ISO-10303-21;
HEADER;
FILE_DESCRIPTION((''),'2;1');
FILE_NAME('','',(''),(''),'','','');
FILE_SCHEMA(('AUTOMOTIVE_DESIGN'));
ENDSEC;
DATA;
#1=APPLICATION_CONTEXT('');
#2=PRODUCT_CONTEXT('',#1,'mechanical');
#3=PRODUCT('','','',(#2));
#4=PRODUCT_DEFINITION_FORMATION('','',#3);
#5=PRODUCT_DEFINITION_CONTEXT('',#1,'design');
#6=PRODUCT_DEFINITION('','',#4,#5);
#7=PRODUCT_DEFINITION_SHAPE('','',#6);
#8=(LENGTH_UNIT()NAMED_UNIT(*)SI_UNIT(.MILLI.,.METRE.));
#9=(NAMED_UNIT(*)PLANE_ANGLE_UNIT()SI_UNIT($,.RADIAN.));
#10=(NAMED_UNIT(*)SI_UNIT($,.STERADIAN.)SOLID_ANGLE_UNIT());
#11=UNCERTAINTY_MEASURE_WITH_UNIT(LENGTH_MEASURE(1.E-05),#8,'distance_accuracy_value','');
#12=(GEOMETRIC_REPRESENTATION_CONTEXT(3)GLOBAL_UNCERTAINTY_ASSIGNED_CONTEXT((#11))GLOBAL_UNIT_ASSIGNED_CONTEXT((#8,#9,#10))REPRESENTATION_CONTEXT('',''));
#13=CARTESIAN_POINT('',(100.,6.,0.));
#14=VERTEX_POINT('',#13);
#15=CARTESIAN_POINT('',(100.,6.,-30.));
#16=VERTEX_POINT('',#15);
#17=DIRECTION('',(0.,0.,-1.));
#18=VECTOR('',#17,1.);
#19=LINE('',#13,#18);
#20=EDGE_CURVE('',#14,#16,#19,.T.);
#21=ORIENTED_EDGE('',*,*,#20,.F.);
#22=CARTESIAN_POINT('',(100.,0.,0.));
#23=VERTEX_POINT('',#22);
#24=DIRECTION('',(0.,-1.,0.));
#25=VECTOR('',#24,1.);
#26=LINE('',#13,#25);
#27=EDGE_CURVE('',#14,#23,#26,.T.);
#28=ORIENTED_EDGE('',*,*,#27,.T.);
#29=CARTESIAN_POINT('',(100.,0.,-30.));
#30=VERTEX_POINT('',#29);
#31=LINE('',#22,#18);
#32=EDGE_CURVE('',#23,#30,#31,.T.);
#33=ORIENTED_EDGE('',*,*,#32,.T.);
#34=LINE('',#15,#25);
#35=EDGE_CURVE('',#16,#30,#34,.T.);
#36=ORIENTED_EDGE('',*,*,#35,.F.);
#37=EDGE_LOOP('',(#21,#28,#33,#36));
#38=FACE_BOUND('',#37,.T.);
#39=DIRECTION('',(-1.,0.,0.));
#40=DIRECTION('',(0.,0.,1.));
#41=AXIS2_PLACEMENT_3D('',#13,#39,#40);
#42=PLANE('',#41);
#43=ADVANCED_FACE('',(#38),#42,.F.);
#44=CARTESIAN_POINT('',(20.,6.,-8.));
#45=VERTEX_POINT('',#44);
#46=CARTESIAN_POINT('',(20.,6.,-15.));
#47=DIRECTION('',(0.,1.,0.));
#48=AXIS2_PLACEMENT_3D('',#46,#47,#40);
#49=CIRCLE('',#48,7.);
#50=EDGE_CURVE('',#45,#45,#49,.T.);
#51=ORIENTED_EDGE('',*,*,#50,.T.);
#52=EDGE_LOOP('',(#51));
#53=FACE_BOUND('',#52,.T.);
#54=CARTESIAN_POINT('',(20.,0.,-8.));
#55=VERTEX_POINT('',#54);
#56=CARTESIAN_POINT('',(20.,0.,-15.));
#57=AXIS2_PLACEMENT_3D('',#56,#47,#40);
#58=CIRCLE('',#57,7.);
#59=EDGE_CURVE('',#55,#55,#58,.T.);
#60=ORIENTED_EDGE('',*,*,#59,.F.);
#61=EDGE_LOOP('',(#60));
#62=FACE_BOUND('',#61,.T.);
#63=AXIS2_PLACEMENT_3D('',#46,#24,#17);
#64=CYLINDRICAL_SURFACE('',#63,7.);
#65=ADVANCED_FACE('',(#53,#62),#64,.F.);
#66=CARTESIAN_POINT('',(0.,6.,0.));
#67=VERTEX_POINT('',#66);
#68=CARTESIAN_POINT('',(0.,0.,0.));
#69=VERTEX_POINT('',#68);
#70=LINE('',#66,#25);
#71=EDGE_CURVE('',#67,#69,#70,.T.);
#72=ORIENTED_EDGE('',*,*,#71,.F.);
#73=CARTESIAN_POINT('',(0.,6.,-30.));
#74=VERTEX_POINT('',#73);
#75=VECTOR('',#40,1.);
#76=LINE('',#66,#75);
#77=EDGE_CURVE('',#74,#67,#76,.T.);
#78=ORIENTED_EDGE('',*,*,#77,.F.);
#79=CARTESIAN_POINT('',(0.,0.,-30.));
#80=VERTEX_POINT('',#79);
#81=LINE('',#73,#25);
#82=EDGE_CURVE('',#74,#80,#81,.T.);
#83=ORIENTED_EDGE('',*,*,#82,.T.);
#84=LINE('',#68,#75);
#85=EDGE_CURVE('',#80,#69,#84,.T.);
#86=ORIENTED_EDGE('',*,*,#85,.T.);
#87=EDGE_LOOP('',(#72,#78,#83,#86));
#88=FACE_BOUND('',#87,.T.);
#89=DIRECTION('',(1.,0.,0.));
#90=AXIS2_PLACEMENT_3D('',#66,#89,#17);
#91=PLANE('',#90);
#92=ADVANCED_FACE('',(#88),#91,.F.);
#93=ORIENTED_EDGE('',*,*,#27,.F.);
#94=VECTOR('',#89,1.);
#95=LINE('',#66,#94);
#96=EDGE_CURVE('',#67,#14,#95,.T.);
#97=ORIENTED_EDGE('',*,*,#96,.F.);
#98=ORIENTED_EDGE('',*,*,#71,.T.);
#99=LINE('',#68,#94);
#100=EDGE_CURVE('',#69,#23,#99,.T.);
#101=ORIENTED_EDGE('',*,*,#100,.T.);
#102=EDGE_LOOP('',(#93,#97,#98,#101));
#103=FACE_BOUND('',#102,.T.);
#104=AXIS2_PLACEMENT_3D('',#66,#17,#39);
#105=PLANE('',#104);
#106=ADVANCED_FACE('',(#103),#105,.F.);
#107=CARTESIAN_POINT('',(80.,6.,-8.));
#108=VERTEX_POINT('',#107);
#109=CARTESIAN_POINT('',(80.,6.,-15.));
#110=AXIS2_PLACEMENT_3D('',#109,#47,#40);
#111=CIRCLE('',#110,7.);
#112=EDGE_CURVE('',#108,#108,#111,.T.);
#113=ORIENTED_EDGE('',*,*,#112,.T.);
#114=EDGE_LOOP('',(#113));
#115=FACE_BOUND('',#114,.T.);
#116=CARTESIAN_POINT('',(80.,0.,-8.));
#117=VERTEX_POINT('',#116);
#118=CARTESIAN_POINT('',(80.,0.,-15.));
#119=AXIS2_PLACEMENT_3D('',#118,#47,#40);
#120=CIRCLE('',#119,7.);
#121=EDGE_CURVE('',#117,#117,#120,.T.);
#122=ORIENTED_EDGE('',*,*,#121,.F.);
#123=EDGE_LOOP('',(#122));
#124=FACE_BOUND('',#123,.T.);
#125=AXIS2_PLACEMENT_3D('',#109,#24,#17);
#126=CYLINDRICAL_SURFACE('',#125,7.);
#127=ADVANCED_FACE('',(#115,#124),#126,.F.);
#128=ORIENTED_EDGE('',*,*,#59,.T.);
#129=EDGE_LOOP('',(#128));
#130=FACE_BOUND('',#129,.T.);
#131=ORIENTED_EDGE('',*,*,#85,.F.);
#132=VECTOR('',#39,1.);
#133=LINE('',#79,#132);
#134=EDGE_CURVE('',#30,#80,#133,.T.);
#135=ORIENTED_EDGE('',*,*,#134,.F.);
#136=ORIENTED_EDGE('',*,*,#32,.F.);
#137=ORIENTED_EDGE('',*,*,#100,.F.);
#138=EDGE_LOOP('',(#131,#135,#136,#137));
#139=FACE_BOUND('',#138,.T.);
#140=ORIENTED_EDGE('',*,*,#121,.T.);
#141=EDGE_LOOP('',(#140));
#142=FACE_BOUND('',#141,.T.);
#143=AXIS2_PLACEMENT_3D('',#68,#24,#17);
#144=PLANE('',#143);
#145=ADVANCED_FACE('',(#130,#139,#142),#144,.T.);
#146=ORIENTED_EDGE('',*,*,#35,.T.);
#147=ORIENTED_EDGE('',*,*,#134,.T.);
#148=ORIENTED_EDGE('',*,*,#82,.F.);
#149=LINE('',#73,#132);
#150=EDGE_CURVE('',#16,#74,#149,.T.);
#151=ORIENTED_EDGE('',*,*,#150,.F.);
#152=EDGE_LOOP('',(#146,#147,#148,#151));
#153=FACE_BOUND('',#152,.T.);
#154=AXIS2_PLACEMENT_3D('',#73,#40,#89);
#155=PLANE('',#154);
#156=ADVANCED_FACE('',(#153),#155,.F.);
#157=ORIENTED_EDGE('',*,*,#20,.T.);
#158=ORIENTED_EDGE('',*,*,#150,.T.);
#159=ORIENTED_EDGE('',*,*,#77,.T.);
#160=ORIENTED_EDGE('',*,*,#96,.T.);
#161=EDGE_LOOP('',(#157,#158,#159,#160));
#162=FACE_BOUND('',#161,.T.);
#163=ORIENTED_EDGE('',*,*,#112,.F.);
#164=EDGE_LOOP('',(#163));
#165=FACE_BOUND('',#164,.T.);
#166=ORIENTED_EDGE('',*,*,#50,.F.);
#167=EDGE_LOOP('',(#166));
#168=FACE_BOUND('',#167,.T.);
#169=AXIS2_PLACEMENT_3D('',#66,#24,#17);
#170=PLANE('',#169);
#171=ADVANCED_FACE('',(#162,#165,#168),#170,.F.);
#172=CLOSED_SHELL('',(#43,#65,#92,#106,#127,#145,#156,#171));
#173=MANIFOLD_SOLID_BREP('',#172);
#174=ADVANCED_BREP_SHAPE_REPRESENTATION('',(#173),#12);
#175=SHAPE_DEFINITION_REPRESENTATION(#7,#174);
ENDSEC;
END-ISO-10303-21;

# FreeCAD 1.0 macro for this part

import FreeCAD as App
import Part
import Sketcher
from FreeCAD import Vector
Q = App.Units.Quantity

doc = App.newDocument("Part")
params = doc.addObject("Spreadsheet::Sheet", "Params")
for row, (alias, value) in enumerate([
    ("sketch1_diameter", "14 mm"),
    ("sketch1_width", "100 mm"),
    ("sketch1_height", "30 mm"),
    ("pad1_length", "6 mm"),
], start=1):
    params.set(f"A{row}", alias)
    params.set(f"B{row}", "=" + value)
    params.setAlias(f"B{row}", alias)

body = doc.addObject("PartDesign::Body", "Body")

# Sketch on XZ plane
sketch1 = body.newObject("Sketcher::SketchObject", "Sketch")
sketch1.AttachmentSupport = (doc.getObject("XZ_Plane"), [""])
sketch1.MapMode = "FlatFace"
sketch1.addGeometry([
    Part.LineSegment(Vector(0, -30, 0), Vector(0, 0, 0)),  # 0
    Part.LineSegment(Vector(0, 0, 0), Vector(100, 0, 0)),  # 1
    Part.LineSegment(Vector(100, 0, 0), Vector(100, -30, 0)),  # 2
    Part.LineSegment(Vector(100, -30, 0), Vector(0, -30, 0)),  # 3
    Part.Circle(Vector(20, -15, 0), Vector(0, 0, 1), 7),  # 4
    Part.Circle(Vector(80, -15, 0), Vector(0, 0, 1), 7),  # 5
], False)
sketch1.addConstraint([
    Sketcher.Constraint("Coincident", 0, 2, 1, 1),
    Sketcher.Constraint("Coincident", 1, 2, 2, 1),
    Sketcher.Constraint("Coincident", 2, 2, 3, 1),
    Sketcher.Constraint("Coincident", 3, 2, 0, 1),
    Sketcher.Constraint("Vertical", 0),
    Sketcher.Constraint("Horizontal", 1),
    Sketcher.Constraint("Vertical", 2),
    Sketcher.Constraint("Horizontal", 3),
    Sketcher.Constraint("Coincident", 0, 2, -1, 1),
    Sketcher.Constraint("Equal", 4, 5),
    Sketcher.Constraint("Horizontal", 4, 3, 5, 3),
    Sketcher.Constraint("Diameter", 4, Q("14 mm")),
    Sketcher.Constraint("DistanceX", 1, 1, 1, 2, Q("100 mm")),
    Sketcher.Constraint("DistanceY", 0, 1, 0, 2, Q("30 mm")),
    Sketcher.Constraint("DistanceX", -1, 1, 4, 3, Q("20 mm")),
    Sketcher.Constraint("DistanceY", 4, 3, -1, 1, Q("15 mm")),
    Sketcher.Constraint("DistanceX", -1, 1, 5, 3, Q("80 mm")),
])
sketch1.setExpression("Constraints[11]", "Params.sketch1_diameter")
sketch1.setExpression("Constraints[12]", "Params.sketch1_width")
sketch1.setExpression("Constraints[13]", "Params.sketch1_height")
pad1 = body.newObject("PartDesign::Pad", "Pad")
pad1.Profile = sketch1
pad1.setExpression("Length", "Params.pad1_length")
pad1.Reversed = True

doc.recompute()
